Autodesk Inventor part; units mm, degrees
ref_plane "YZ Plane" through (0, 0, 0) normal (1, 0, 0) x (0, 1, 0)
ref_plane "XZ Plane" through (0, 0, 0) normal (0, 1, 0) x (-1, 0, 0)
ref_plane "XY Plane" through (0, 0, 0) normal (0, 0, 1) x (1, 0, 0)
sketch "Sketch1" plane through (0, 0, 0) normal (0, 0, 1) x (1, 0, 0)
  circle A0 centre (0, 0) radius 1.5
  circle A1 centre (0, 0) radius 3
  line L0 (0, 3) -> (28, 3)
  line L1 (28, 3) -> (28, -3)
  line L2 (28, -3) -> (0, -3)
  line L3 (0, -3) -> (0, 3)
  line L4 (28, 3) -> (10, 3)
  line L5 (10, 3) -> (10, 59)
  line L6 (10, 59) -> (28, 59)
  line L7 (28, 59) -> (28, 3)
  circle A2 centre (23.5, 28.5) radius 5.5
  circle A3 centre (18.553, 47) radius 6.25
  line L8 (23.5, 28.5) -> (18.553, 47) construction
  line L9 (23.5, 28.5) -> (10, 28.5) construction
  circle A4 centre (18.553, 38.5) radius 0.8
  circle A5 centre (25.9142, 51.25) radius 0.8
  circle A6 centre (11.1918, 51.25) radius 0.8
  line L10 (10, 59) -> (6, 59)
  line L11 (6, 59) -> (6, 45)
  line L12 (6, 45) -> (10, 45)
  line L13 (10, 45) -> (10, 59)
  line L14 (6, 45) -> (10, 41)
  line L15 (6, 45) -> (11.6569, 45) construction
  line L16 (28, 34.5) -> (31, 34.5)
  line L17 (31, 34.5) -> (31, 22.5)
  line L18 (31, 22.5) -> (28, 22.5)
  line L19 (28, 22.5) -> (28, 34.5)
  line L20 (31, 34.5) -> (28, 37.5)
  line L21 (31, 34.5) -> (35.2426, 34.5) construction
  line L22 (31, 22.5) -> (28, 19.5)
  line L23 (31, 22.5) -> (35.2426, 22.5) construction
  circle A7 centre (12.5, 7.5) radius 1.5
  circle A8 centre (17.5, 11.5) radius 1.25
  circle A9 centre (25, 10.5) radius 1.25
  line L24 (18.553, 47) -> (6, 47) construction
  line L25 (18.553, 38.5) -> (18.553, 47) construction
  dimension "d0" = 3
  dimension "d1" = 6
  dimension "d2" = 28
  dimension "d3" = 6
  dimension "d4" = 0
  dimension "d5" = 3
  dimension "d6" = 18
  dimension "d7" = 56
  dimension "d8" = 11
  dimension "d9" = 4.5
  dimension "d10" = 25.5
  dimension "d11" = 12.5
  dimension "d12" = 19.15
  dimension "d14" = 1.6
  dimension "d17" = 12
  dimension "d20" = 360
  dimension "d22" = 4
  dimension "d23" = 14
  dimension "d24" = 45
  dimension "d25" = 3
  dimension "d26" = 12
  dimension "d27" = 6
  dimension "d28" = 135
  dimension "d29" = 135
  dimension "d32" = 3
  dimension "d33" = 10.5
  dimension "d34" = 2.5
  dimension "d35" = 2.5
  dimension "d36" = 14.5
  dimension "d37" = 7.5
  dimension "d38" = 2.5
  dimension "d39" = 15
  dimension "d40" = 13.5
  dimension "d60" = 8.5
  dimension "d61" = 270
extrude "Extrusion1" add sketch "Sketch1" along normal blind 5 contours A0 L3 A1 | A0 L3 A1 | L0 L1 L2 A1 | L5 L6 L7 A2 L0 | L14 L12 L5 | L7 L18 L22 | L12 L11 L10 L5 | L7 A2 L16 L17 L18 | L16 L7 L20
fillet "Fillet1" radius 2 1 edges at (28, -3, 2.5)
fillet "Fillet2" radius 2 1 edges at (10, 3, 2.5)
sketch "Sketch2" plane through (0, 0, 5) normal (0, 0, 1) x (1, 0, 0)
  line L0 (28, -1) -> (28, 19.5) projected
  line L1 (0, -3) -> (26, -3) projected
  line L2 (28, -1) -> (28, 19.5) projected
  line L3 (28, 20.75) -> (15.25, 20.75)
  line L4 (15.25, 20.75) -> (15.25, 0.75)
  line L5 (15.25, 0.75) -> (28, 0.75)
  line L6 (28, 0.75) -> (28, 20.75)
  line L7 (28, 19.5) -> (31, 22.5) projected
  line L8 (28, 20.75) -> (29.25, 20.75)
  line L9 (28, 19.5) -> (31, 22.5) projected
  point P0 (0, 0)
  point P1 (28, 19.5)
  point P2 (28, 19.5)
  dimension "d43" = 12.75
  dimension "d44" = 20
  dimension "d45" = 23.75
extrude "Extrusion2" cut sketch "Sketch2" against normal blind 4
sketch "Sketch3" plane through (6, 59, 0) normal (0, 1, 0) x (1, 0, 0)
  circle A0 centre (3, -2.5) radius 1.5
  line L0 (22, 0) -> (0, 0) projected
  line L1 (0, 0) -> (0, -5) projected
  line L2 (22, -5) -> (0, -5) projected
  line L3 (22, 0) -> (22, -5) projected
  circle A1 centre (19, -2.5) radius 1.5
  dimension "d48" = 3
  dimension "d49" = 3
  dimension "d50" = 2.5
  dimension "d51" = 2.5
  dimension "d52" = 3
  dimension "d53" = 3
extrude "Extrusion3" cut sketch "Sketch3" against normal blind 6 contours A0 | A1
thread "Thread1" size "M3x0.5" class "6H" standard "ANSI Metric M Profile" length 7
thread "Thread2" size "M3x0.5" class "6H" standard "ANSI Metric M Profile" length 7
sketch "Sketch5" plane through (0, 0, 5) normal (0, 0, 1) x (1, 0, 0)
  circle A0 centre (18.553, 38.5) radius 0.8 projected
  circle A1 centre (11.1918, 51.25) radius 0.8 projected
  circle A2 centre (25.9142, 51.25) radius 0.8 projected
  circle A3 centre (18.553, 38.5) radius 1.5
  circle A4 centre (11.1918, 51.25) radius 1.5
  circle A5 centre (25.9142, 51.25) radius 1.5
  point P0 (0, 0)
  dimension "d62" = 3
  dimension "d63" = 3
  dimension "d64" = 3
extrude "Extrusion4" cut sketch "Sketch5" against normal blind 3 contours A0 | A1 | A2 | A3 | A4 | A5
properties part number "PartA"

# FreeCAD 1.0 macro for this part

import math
import FreeCAD as App
import Part
import Sketcher
Q = App.Units.Quantity


def edges_at(feature, points):
    """Names of the edges that pass closest to the given points."""
    edges = feature.Shape.Edges
    near = lambda p: min(range(len(edges)), key=lambda i: edges[i].distToShape(Part.Vertex(*p))[0])
    return sorted({f"Edge{near(p) + 1}" for p in points})


def add_polygon(sketch, points):
    """Adds a closed chain of lines whose ends are joined by coincident constraints."""
    first, n = sketch.GeometryCount, len(points)
    for a, b in zip(points, points[1:] + points[:1]):
        sketch.addGeometry(Part.LineSegment(App.Vector(*a, 0), App.Vector(*b, 0)), False)
    for i in range(n):
        sketch.addConstraint(Sketcher.Constraint("Coincident", first + i, 2, first + (i + 1) % n, 1))

doc = App.newDocument("Part")
body = doc.addObject("PartDesign::Body", "Body")

# Sketch on XY plane
sketch1 = doc.addObject("Sketcher::SketchObject", "Sketch")
body.addObject(sketch1)
sketch1.AttachmentSupport = (doc.XY_Plane, [""])
sketch1.MapMode = "FlatFace"
sketch1.addGeometry([
    Part.ArcOfCircle(Part.Circle(App.Vector(0, 0, 0), App.Vector(0, 0, 1), 3), math.radians(90), math.radians(270)),  # 0
    Part.LineSegment(App.Vector(0, -3, 0), App.Vector(28, -3, 0)),  # 1
    Part.LineSegment(App.Vector(28, -3, 0), App.Vector(28, 19.5, 0)),  # 2
    Part.LineSegment(App.Vector(28, 19.5, 0), App.Vector(31, 22.5, 0)),  # 3
    Part.LineSegment(App.Vector(31, 22.5, 0), App.Vector(31, 34.5, 0)),  # 4
    Part.LineSegment(App.Vector(31, 34.5, 0), App.Vector(28, 37.5, 0)),  # 5
    Part.LineSegment(App.Vector(28, 37.5, 0), App.Vector(28, 59, 0)),  # 6
    Part.LineSegment(App.Vector(28, 59, 0), App.Vector(6, 59, 0)),  # 7
    Part.LineSegment(App.Vector(6, 59, 0), App.Vector(6, 45, 0)),  # 8
    Part.LineSegment(App.Vector(6, 45, 0), App.Vector(10, 41, 0)),  # 9
    Part.LineSegment(App.Vector(10, 41, 0), App.Vector(10, 3, 0)),  # 10
    Part.LineSegment(App.Vector(10, 3, 0), App.Vector(0, 3, 0)),  # 11
    Part.Circle(App.Vector(0, 0, 0), App.Vector(0, 0, 1), 1.5),  # 12
    Part.Circle(App.Vector(23.5, 28.5, 0), App.Vector(0, 0, 1), 5.5),  # 13
    Part.Circle(App.Vector(25.9, 51.2, 0), App.Vector(0, 0, 1), 0.8),  # 14
    Part.Circle(App.Vector(12.5, 7.5, 0), App.Vector(0, 0, 1), 1.5),  # 15
    Part.Circle(App.Vector(17.5, 11.5, 0), App.Vector(0, 0, 1), 1.2),  # 16
    Part.Circle(App.Vector(25, 10.5, 0), App.Vector(0, 0, 1), 1.2),  # 17
    Part.Circle(App.Vector(11.2, 51.2, 0), App.Vector(0, 0, 1), 0.8),  # 18
    Part.Circle(App.Vector(18.6, 38.5, 0), App.Vector(0, 0, 1), 0.8),  # 19
    Part.Circle(App.Vector(18.6, 47, 0), App.Vector(0, 0, 1), 6.2),  # 20
], False)
sketch1.addConstraint([
    Sketcher.Constraint("Tangent", 0, 2, 1, 1),
    Sketcher.Constraint("Coincident", 1, 2, 2, 1),
    Sketcher.Constraint("Coincident", 2, 2, 3, 1),
    Sketcher.Constraint("Coincident", 3, 2, 4, 1),
    Sketcher.Constraint("Coincident", 4, 2, 5, 1),
    Sketcher.Constraint("Coincident", 5, 2, 6, 1),
    Sketcher.Constraint("Coincident", 6, 2, 7, 1),
    Sketcher.Constraint("Coincident", 7, 2, 8, 1),
    Sketcher.Constraint("Coincident", 8, 2, 9, 1),
    Sketcher.Constraint("Coincident", 9, 2, 10, 1),
    Sketcher.Constraint("Coincident", 10, 2, 11, 1),
    Sketcher.Constraint("Tangent", 11, 2, 0, 1),
    Sketcher.Constraint("Horizontal", 1),
    Sketcher.Constraint("Vertical", 2),
    Sketcher.Constraint("Vertical", 4),
    Sketcher.Constraint("Vertical", 6),
    Sketcher.Constraint("Horizontal", 7),
    Sketcher.Constraint("Vertical", 8),
    Sketcher.Constraint("Vertical", 10),
    Sketcher.Constraint("Horizontal", 11),
    Sketcher.Constraint("Coincident", 0, 3, -1, 1),
    Sketcher.Constraint("Coincident", 12, 3, -1, 1),
    Sketcher.Constraint("Equal", 12, 15),
    Sketcher.Constraint("Equal", 16, 17),
    Sketcher.Constraint("Equal", 14, 18),
    Sketcher.Constraint("Equal", 18, 19),
    Sketcher.Constraint("Perpendicular", 3, 5),
    Sketcher.Constraint("Parallel", 5, 9),
    Sketcher.Constraint("Horizontal", 14, 3, 18, 3),
    Sketcher.Constraint("Vertical", 19, 3, 20, 3),
    Sketcher.Constraint("Vertical", 2, 2, 5, 2),
    Sketcher.Constraint("Equal", 3, 5),
    Sketcher.Constraint("Diameter", 12, 3.0),
    Sketcher.Constraint("Diameter", 13, 11.0),
    Sketcher.Constraint("Radius", 0, 3.0),
    Sketcher.Constraint("Diameter", 14, 1.6),
    Sketcher.Constraint("Diameter", 16, 2.5),
    Sketcher.Constraint("Diameter", 20, 12.5),
    Sketcher.Constraint("DistanceX", 1, 1, 1, 2, 28.0),
    Sketcher.Constraint("DistanceY", 4, 1, 4, 2, 12.0),
    Sketcher.Constraint("DistanceY", 8, 2, 8, 1, 14.0),
    Sketcher.Constraint("DistanceX", -1, 1, 7, 2, 6.0),
    Sketcher.Constraint("DistanceY", -1, 1, 8, 2, 45.0),
    Sketcher.Constraint("DistanceX", 15, 3, 13, 3, 11.0),
    Sketcher.Constraint("DistanceY", 15, 3, 16, 3, 4.0),
    Sketcher.Constraint("DistanceX", 16, 3, 13, 3, 6.0),
    Sketcher.Constraint("DistanceY", 15, 3, 17, 3, 3.0),
    Sketcher.Constraint("DistanceY", 17, 3, 13, 3, 18.0),
    Sketcher.Constraint("DistanceY", 17, 3, 19, 3, 28.0),
    Sketcher.Constraint("DistanceX", 17, 3, 1, 2, 3.0),
    Sketcher.Constraint("DistanceY", 15, 3, 2, 2, 12.0),
    Sketcher.Constraint("DistanceX", 2, 2, 3, 2, 3.0),
    Sketcher.Constraint("DistanceY", 20, 3, 6, 2, 12.0),
    Sketcher.Constraint("DistanceX", 8, 2, 9, 2, 4.0),
    Sketcher.Constraint("DistanceX", -1, 1, 15, 3, 12.5),
    Sketcher.Constraint("DistanceY", -1, 1, 15, 3, 7.5),
    Sketcher.Constraint("DistanceY", -1, 1, 14, 3, 51.25),
    Sketcher.Constraint("DistanceX", -1, 1, 19, 3, 18.553),
    Sketcher.Constraint("DistanceX", -1, 1, 14, 3, 25.9142),
    Sketcher.Constraint("DistanceX", -1, 1, 18, 3, 11.1918),
])
pad1 = doc.addObject("PartDesign::Pad", "Pad")
body.addObject(pad1)
pad1.Profile = sketch1
pad1.Length = 5
doc.recompute()

fillet = doc.addObject("PartDesign::Fillet", "Fillet")
body.addObject(fillet)
fillet.Base = (pad1, edges_at(pad1, [(28, -3, 2.5)]))
fillet.Radius = 2
doc.recompute()

fillet2 = doc.addObject("PartDesign::Fillet", "Fillet001")
body.addObject(fillet2)
fillet2.Base = (fillet, edges_at(fillet, [(10, 3, 2.5)]))
fillet2.Radius = 2

# Sketch on XY plane
sketch2 = doc.addObject("Sketcher::SketchObject", "Sketch001")
body.addObject(sketch2)
sketch2.AttachmentSupport = (doc.XY_Plane, [""])
sketch2.MapMode = "FlatFace"
sketch2.AttachmentOffset = App.Placement(App.Vector(0, 0, 5), App.Rotation())
add_polygon(sketch2, [(15.2, 0.8), (28, 0.8), (28, 19.5), (29.2, 20.8), (15.2, 20.8)])  # lines 0-4
sketch2.addConstraint([
    Sketcher.Constraint("Horizontal", 0),
    Sketcher.Constraint("Vertical", 1),
    Sketcher.Constraint("Horizontal", 3),
    Sketcher.Constraint("Vertical", 4),
    Sketcher.Constraint("DistanceY", 4, 2, 4, 1, 20.0),
    Sketcher.Constraint("DistanceX", 0, 1, 0, 2, 12.75),
    Sketcher.Constraint("DistanceX", 3, 2, 3, 1, 14.0),
    Sketcher.Constraint("Angle", 2, Q("45 deg")),
    Sketcher.Constraint("DistanceX", -1, 1, 0, 2, 28.0),
    Sketcher.Constraint("DistanceY", -1, 1, 1, 2, 19.5),
])
pocket1 = doc.addObject("PartDesign::Pocket", "Pocket")
body.addObject(pocket1)
pocket1.Profile = sketch2
pocket1.Length = 4

# Sketch on XZ plane
sketch3 = doc.addObject("Sketcher::SketchObject", "Sketch002")
body.addObject(sketch3)
sketch3.AttachmentSupport = (doc.XZ_Plane, [""])
sketch3.MapMode = "FlatFace"
sketch3.AttachmentOffset = App.Placement(App.Vector(0, 0, -59), App.Rotation())
sketch3.addGeometry([
    Part.Circle(App.Vector(9, 2.5, 0), App.Vector(0, 0, 1), 1.5),
    Part.Circle(App.Vector(25, 2.5, 0), App.Vector(0, 0, 1), 1.5),
], False)
sketch3.addConstraint([
    Sketcher.Constraint("Equal", 0, 1),
    Sketcher.Constraint("Horizontal", 0, 3, 1, 3),
    Sketcher.Constraint("Diameter", 0, 3.0),
    Sketcher.Constraint("DistanceY", -1, 1, 0, 3, 2.5),
    Sketcher.Constraint("DistanceX", -1, 1, 0, 3, 9.0),
    Sketcher.Constraint("DistanceX", -1, 1, 1, 3, 25.0),
])
pocket2 = doc.addObject("PartDesign::Pocket", "Pocket001")
body.addObject(pocket2)
pocket2.Profile = sketch3
pocket2.Length = 6
pocket2.Reversed = True

# Sketch on XY plane
sketch4 = doc.addObject("Sketcher::SketchObject", "Sketch003")
body.addObject(sketch4)
sketch4.AttachmentSupport = (doc.XY_Plane, [""])
sketch4.MapMode = "FlatFace"
sketch4.AttachmentOffset = App.Placement(App.Vector(0, 0, 5), App.Rotation())
sketch4.addGeometry([
    Part.Circle(App.Vector(18.6, 38.5, 0), App.Vector(0, 0, 1), 1.5),
    Part.Circle(App.Vector(11.2, 51.2, 0), App.Vector(0, 0, 1), 1.5),
    Part.Circle(App.Vector(25.9, 51.2, 0), App.Vector(0, 0, 1), 1.5),
], False)
sketch4.addConstraint([
    Sketcher.Constraint("Equal", 0, 1),
    Sketcher.Constraint("Equal", 1, 2),
    Sketcher.Constraint("Horizontal", 1, 3, 2, 3),
    Sketcher.Constraint("Diameter", 0, 3.0),
    Sketcher.Constraint("DistanceY", -1, 1, 0, 3, 38.5),
    Sketcher.Constraint("DistanceY", -1, 1, 1, 3, 51.25),
    Sketcher.Constraint("DistanceX", -1, 1, 0, 3, 18.553),
    Sketcher.Constraint("DistanceX", -1, 1, 1, 3, 11.1918),
    Sketcher.Constraint("DistanceX", -1, 1, 2, 3, 25.9142),
])
pocket3 = doc.addObject("PartDesign::Pocket", "Pocket002")
body.addObject(pocket3)
pocket3.Profile = sketch4
pocket3.Length = 3

doc.recompute()
